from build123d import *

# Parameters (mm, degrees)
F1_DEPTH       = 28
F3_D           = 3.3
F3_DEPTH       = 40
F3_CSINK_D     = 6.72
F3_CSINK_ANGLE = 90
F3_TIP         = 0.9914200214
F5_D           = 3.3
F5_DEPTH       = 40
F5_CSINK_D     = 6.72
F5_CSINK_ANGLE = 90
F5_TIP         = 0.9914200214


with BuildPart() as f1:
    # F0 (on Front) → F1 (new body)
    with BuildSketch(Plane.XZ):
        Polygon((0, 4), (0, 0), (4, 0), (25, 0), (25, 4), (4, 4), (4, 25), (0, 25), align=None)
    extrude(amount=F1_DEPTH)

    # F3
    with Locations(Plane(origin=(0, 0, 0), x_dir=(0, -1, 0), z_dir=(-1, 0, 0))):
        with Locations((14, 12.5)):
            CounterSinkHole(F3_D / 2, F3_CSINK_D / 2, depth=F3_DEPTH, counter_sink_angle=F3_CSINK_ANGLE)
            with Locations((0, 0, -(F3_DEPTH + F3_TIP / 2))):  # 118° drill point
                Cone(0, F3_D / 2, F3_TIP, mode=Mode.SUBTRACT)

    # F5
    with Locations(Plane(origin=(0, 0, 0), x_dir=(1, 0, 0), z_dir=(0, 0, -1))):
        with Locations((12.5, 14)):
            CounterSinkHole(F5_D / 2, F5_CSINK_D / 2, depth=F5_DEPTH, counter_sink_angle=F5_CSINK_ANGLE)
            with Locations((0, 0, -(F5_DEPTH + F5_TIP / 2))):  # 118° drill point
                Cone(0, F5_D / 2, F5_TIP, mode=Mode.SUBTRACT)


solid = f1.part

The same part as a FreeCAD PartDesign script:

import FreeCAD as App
import Part
import Sketcher

V = App.Vector
Q = App.Units.Quantity


def add_polygon(sketch, points):
    """Adds a closed chain of lines whose ends are joined by coincident constraints."""
    first, n = sketch.GeometryCount, len(points)
    for a, b in zip(points, points[1:] + points[:1]):
        sketch.addGeometry(Part.LineSegment(App.Vector(*a, 0), App.Vector(*b, 0)), False)
    for i in range(n):
        sketch.addConstraint(Sketcher.Constraint("Coincident", first + i, 2, first + (i + 1) % n, 1))

doc = App.newDocument("Part")
params = doc.addObject("Spreadsheet::Sheet", "Params")
for row, (alias, value) in enumerate([
    ("sketch1_width", "25 mm"),
    ("sketch1_width2", "21 mm"),
    ("pad1_length", "28 mm"),
    ("sketch2_diameter", "3.3 mm"),
    ("hole_diameter", "3.3 mm"),
    ("hole_depth", "40 mm"),
    ("hole_csink_diameter", "6.72 mm"),
    ("sketch3_diameter", "3.3 mm"),
    ("hole2_diameter", "3.3 mm"),
    ("hole2_depth", "40 mm"),
    ("hole2_csink_diameter", "6.72 mm"),
], start=1):
    params.set(f"A{row}", alias)
    params.set(f"B{row}", "=" + value)
    params.setAlias(f"B{row}", alias)

body = doc.addObject("PartDesign::Body", "Body")

sketch1 = body.newObject("Sketcher::SketchObject", "Sketch")
sketch1.AttachmentSupport = (doc.getObject("XZ_Plane"), [""])
sketch1.MapMode = "FlatFace"
add_polygon(sketch1, [(0, 0), (25, 0), (25, 4), (4, 4), (4, 25), (0, 25)])
sketch1.addConstraint(Sketcher.Constraint("Horizontal", 0))
sketch1.addConstraint(Sketcher.Constraint("Vertical", 1))
sketch1.addConstraint(Sketcher.Constraint("Horizontal", 2))
sketch1.addConstraint(Sketcher.Constraint("Vertical", 3))
sketch1.addConstraint(Sketcher.Constraint("Horizontal", 4))
sketch1.addConstraint(Sketcher.Constraint("Vertical", 5))
sketch1.addConstraint(Sketcher.Constraint("Coincident", 5, 2, -1, 1))
sketch1.addConstraint(Sketcher.Constraint("Equal", 4, 1))
sketch1.addConstraint(Sketcher.Constraint("Equal", 2, 3))
sketch1.addConstraint(Sketcher.Constraint("DistanceX", 0, 1, 0, 2, Q("25 mm")))
sketch1.addConstraint(Sketcher.Constraint("DistanceX", 2, 2, 2, 1, Q("21 mm")))
sketch1.setExpression("Constraints[15]", "Params.sketch1_width")
sketch1.setExpression("Constraints[16]", "Params.sketch1_width2")
pad1 = body.newObject("PartDesign::Pad", "Pad")
pad1.Profile = sketch1
pad1.setExpression("Length", "Params.pad1_length")

sketch2 = body.newObject("Sketcher::SketchObject", "Sketch001")
sketch2.AttachmentSupport = (doc.getObject("YZ_Plane"), [""])
sketch2.MapMode = "FlatFace"
sketch2.addGeometry(Part.Circle(V(-14, 12.5, 0), V(0, 0, 1), 1.6), False)
sketch2.addConstraint(Sketcher.Constraint("Diameter", 0, Q("3.3 mm")))
sketch2.addConstraint(Sketcher.Constraint("DistanceX", 0, 3, -1, 1, Q("14 mm")))
sketch2.addConstraint(Sketcher.Constraint("DistanceY", -1, 1, 0, 3, Q("12.5 mm")))
sketch2.setExpression("Constraints[0]", "Params.sketch2_diameter")
doc.recompute()
hole = body.newObject("PartDesign::Hole", "Hole")
hole.Profile = sketch2
hole.ThreadType = "None"
hole.setExpression("Diameter", "Params.hole_diameter")
hole.DepthType = "Dimension"
hole.setExpression("Depth", "Params.hole_depth")
hole.DrillPoint = "Angled"
hole.DrillPointAngle = 118
hole.HoleCutType = "Countersink"
hole.setExpression("HoleCutDiameter", "Params.hole_csink_diameter")
hole.HoleCutCountersinkAngle = 90
hole.Reversed = True

sketch3 = body.newObject("Sketcher::SketchObject", "Sketch002")
sketch3.AttachmentSupport = (doc.getObject("XY_Plane"), [""])
sketch3.MapMode = "FlatFace"
sketch3.addGeometry(Part.Circle(V(12.5, -14, 0), V(0, 0, 1), 1.6), False)
sketch3.addConstraint(Sketcher.Constraint("Diameter", 0, Q("3.3 mm")))
sketch3.addConstraint(Sketcher.Constraint("DistanceY", 0, 3, -1, 1, Q("14 mm")))
sketch3.addConstraint(Sketcher.Constraint("DistanceX", -1, 1, 0, 3, Q("12.5 mm")))
sketch3.setExpression("Constraints[0]", "Params.sketch3_diameter")
doc.recompute()
hole2 = body.newObject("PartDesign::Hole", "Hole001")
hole2.Profile = sketch3
hole2.ThreadType = "None"
hole2.setExpression("Diameter", "Params.hole2_diameter")
hole2.DepthType = "Dimension"
hole2.setExpression("Depth", "Params.hole2_depth")
hole2.DrillPoint = "Angled"
hole2.DrillPointAngle = 118
hole2.HoleCutType = "Countersink"
hole2.setExpression("HoleCutDiameter", "Params.hole2_csink_diameter")
hole2.HoleCutCountersinkAngle = 90
hole2.Reversed = True

doc.recompute()
